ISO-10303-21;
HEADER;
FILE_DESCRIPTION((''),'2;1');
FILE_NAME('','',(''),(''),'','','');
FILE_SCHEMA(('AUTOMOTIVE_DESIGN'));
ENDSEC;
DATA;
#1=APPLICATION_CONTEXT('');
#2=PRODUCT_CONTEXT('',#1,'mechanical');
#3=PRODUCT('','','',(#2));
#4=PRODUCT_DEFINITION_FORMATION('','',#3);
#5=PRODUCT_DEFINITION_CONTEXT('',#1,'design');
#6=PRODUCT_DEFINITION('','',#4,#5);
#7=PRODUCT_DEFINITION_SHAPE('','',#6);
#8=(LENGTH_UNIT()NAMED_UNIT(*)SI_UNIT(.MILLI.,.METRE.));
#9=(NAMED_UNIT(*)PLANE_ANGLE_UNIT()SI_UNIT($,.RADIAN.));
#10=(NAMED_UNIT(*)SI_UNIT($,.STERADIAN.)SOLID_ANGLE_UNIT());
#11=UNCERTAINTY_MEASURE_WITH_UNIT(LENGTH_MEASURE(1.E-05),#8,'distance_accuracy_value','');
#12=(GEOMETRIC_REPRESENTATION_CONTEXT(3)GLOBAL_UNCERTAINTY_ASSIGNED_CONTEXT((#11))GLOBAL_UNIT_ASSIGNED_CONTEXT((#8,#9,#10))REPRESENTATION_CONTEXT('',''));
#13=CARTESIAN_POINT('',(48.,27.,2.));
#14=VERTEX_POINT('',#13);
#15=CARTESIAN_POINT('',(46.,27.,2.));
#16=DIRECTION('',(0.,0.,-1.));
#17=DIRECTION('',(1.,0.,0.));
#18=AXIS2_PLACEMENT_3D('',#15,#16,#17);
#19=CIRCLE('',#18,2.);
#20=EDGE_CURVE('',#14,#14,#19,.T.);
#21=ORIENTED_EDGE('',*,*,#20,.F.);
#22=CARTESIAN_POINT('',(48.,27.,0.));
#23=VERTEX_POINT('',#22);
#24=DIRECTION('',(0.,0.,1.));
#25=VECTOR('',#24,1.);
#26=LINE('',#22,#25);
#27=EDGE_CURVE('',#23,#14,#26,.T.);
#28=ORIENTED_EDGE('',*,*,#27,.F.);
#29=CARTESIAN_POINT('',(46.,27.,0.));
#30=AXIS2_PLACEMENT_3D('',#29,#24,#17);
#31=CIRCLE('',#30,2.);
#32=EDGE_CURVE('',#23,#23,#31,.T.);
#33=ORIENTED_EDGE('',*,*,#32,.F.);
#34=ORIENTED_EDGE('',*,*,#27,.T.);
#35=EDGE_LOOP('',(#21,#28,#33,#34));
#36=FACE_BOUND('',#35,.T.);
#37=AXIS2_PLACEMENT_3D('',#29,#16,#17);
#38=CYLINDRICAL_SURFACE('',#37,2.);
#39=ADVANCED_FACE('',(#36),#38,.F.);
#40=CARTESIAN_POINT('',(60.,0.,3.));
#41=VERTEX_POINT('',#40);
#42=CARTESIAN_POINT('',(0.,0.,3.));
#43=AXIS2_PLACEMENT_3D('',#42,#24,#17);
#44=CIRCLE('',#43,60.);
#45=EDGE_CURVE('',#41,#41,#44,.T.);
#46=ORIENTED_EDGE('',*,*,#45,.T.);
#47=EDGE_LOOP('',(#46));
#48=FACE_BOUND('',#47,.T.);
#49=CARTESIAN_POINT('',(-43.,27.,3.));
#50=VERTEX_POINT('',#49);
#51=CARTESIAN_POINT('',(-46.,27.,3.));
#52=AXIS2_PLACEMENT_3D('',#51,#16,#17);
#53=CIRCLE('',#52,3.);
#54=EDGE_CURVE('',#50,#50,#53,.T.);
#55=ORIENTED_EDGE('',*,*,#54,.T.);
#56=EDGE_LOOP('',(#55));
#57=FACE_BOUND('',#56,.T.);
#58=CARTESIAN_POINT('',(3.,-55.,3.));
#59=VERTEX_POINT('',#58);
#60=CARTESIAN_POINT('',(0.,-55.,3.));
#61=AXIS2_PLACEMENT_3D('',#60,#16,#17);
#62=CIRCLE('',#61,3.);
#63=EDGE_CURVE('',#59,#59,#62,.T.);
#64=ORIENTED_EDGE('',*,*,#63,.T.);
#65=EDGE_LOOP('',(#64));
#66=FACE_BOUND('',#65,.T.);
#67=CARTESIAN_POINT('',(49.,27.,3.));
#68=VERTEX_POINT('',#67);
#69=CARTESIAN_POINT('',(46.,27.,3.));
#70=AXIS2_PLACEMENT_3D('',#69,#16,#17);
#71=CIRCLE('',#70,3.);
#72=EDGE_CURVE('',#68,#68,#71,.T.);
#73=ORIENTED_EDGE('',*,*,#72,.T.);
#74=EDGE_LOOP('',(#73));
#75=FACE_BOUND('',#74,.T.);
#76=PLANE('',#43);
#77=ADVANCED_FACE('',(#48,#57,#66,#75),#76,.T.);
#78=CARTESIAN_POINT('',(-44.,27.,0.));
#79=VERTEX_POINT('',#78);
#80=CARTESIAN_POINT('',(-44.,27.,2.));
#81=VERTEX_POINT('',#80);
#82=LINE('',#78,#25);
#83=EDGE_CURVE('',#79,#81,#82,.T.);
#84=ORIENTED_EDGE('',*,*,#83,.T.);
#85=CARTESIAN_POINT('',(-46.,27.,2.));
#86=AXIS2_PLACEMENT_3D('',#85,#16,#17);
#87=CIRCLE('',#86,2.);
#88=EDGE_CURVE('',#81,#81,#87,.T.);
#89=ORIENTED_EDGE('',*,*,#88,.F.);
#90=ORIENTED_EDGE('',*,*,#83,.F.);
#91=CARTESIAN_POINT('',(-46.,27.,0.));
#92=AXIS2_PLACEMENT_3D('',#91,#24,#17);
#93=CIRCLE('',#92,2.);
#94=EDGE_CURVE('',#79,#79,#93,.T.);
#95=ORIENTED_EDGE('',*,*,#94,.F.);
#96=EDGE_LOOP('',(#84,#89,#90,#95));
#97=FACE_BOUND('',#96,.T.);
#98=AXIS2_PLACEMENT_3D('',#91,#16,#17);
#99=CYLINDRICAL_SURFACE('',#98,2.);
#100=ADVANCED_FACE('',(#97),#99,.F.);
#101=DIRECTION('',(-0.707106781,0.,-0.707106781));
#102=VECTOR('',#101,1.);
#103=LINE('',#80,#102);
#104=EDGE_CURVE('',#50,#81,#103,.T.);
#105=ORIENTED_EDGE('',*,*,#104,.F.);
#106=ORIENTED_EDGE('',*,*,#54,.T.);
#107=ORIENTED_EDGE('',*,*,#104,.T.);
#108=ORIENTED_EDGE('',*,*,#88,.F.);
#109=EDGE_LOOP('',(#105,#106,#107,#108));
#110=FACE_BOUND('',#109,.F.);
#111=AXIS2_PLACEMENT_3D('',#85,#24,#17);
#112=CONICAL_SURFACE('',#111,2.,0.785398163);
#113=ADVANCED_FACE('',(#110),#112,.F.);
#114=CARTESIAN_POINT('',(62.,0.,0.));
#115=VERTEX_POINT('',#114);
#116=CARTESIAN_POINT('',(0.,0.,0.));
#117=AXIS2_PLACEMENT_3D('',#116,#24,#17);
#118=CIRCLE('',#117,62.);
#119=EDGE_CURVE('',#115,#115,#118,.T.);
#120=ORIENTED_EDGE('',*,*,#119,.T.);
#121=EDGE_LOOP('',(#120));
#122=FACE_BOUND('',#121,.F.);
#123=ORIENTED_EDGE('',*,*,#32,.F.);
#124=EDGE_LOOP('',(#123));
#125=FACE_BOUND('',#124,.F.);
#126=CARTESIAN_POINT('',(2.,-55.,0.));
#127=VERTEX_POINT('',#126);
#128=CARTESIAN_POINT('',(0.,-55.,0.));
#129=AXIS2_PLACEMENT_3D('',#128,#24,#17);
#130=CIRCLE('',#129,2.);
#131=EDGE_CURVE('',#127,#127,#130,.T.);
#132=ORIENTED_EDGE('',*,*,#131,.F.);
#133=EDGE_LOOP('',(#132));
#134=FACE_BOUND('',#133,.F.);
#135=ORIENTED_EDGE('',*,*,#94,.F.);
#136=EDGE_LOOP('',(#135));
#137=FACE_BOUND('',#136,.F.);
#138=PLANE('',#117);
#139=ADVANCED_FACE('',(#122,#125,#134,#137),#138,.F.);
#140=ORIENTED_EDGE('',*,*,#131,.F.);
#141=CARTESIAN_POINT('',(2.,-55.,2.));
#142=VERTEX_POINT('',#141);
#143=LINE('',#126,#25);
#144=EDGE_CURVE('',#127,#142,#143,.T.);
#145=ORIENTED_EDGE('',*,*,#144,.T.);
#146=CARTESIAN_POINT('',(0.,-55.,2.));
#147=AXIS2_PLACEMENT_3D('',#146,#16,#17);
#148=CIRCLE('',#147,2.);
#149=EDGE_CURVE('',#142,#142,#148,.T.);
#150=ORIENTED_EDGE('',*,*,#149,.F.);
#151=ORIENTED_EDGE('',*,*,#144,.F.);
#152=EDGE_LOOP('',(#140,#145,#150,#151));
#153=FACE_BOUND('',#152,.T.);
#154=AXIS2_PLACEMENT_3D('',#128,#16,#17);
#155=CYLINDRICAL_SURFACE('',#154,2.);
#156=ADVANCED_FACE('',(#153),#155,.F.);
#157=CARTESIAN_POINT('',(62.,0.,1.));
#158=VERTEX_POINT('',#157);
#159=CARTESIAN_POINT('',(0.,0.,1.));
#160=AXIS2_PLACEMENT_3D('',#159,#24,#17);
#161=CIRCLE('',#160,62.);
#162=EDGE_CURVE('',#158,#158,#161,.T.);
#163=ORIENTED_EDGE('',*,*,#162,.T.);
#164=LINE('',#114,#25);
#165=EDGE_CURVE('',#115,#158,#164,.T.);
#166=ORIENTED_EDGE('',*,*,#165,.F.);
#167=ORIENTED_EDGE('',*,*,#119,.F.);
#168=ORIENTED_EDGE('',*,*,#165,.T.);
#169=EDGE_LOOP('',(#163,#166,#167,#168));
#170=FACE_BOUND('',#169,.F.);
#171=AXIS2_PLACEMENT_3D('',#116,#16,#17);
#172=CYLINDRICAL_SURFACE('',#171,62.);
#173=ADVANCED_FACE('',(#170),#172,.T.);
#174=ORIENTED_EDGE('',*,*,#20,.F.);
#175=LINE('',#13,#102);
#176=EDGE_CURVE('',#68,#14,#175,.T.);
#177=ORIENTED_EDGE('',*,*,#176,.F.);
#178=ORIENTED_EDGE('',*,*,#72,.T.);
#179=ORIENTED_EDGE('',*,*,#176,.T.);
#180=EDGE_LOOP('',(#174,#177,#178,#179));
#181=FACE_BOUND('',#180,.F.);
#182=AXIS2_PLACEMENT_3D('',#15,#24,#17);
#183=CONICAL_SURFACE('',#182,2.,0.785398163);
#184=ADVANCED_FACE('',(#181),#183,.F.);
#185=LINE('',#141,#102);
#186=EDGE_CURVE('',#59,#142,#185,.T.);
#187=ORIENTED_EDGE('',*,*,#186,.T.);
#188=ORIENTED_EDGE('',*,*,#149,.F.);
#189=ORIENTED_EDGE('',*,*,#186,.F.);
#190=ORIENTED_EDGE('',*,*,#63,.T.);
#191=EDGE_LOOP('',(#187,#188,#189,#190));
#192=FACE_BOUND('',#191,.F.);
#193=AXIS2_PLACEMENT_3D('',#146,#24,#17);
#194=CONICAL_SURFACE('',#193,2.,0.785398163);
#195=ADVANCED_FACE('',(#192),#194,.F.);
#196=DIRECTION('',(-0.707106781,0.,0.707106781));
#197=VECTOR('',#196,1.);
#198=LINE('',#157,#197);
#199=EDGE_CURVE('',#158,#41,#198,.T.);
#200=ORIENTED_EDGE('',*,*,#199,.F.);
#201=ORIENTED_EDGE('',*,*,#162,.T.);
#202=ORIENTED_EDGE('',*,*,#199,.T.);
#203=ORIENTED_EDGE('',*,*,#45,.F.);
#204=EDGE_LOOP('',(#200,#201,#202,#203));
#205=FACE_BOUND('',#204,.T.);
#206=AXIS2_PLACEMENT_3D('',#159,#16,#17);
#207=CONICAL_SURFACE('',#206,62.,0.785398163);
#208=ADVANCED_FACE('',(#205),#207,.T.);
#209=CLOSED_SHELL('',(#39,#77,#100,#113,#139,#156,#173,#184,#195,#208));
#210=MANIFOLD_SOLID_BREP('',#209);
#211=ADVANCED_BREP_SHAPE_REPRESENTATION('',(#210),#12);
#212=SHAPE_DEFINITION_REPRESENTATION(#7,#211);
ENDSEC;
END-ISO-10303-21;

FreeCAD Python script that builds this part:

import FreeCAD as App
import Part
import Sketcher

V = App.Vector
Q = App.Units.Quantity


def edges_at(feature, points):
    """Names of the edges that pass closest to the given points."""
    edges = feature.Shape.Edges
    near = lambda p: min(range(len(edges)), key=lambda i: edges[i].distToShape(Part.Vertex(*p))[0])
    return sorted({f"Edge{near(p) + 1}" for p in points})

doc = App.newDocument("Part")
body = doc.addObject("PartDesign::Body", "Body")

# Sketch on XY plane
sketch1 = doc.addObject("Sketcher::SketchObject", "Sketch")
body.addObject(sketch1)
sketch1.AttachmentSupport = (doc.XY_Plane, [""])
sketch1.MapMode = "FlatFace"
sketch1.addGeometry(Part.Circle(V(-46, 27, 0), V(0, 0, 1), 2), False)
sketch1.addConstraint([
    Sketcher.Constraint("Diameter", 0, Q("4 mm")),
    Sketcher.Constraint("DistanceX", 0, 3, -1, 1, Q("46 mm")),
    Sketcher.Constraint("DistanceY", -1, 1, 0, 3, Q("27 mm")),
])
pad1 = doc.addObject("PartDesign::Pad", "Pad")
body.addObject(pad1)
pad1.Profile = sketch1
pad1.Length = 10
body2 = doc.addObject("PartDesign::Body", "Body001")

# Sketch on XY plane
sketch2 = doc.addObject("Sketcher::SketchObject", "Sketch001")
body2.addObject(sketch2)
sketch2.AttachmentSupport = (doc.getObject("XY_Plane001"), [""])
sketch2.MapMode = "FlatFace"
sketch2.addGeometry(Part.Circle(V(46, 27, 0), V(0, 0, 1), 2), False)
sketch2.addConstraint([
    Sketcher.Constraint("Diameter", 0, Q("4 mm")),
    Sketcher.Constraint("DistanceX", -1, 1, 0, 3, Q("46 mm")),
    Sketcher.Constraint("DistanceY", -1, 1, 0, 3, Q("27 mm")),
])
pad2 = doc.addObject("PartDesign::Pad", "Pad001")
body2.addObject(pad2)
pad2.Profile = sketch2
pad2.Length = 10
body3 = doc.addObject("PartDesign::Body", "Body002")

# Sketch on XY plane
sketch3 = doc.addObject("Sketcher::SketchObject", "Sketch002")
body3.addObject(sketch3)
sketch3.AttachmentSupport = (doc.getObject("XY_Plane002"), [""])
sketch3.MapMode = "FlatFace"
sketch3.addGeometry(Part.Circle(V(0, -55, 0), V(0, 0, 1), 2), False)
sketch3.addConstraint([
    Sketcher.Constraint("PointOnObject", 0, 3, -2),
    Sketcher.Constraint("Diameter", 0, Q("4 mm")),
    Sketcher.Constraint("DistanceY", 0, 3, -1, 1, Q("55 mm")),
])
pad3 = doc.addObject("PartDesign::Pad", "Pad002")
body3.addObject(pad3)
pad3.Profile = sketch3
pad3.Length = 10
body4 = doc.addObject("PartDesign::Body", "Body003")

# Sketch on XY plane
sketch4 = doc.addObject("Sketcher::SketchObject", "Sketch003")
body4.addObject(sketch4)
sketch4.AttachmentSupport = (doc.getObject("XY_Plane003"), [""])
sketch4.MapMode = "FlatFace"
sketch4.addGeometry(Part.Circle(V(0, 0, 0), V(0, 0, 1), 62), False)
sketch4.addConstraint([
    Sketcher.Constraint("Coincident", 0, 3, -1, 1),
    Sketcher.Constraint("Diameter", 0, Q("124 mm")),
])
pad4 = doc.addObject("PartDesign::Pad", "Pad003")
body4.addObject(pad4)
pad4.Profile = sketch4
pad4.Length = 3
doc.recompute()

boolean = doc.addObject("PartDesign::Boolean", "Boolean")
body4.addObject(boolean)
boolean.Type = "Cut"
boolean.addObjects([body3])
doc.recompute()

boolean2 = doc.addObject("PartDesign::Boolean", "Boolean001")
body4.addObject(boolean2)
boolean2.Type = "Cut"
boolean2.addObjects([body2])
doc.recompute()

boolean3 = doc.addObject("PartDesign::Boolean", "Boolean002")
body4.addObject(boolean3)
boolean3.Type = "Cut"
boolean3.addObjects([body])
doc.recompute()

chamfer = doc.addObject("PartDesign::Chamfer", "Chamfer")
body4.addObject(chamfer)
chamfer.Base = (boolean3, edges_at(boolean3, [(-62, 0, 3)]))
chamfer.Size = 2
doc.recompute()

chamfer2 = doc.addObject("PartDesign::Chamfer", "Chamfer001")
body4.addObject(chamfer2)
chamfer2.Base = (chamfer, edges_at(chamfer, [(-48, 27, 3)]))
chamfer2.Size = 1
doc.recompute()

chamfer3 = doc.addObject("PartDesign::Chamfer", "Chamfer002")
body4.addObject(chamfer3)
chamfer3.Base = (chamfer2, edges_at(chamfer2, [(44, 27, 3)]))
chamfer3.Size = 1
doc.recompute()

chamfer4 = doc.addObject("PartDesign::Chamfer", "Chamfer003")
body4.addObject(chamfer4)
chamfer4.Base = (chamfer3, edges_at(chamfer3, [(-2, -55, 3)]))
chamfer4.Size = 1

doc.recompute()
